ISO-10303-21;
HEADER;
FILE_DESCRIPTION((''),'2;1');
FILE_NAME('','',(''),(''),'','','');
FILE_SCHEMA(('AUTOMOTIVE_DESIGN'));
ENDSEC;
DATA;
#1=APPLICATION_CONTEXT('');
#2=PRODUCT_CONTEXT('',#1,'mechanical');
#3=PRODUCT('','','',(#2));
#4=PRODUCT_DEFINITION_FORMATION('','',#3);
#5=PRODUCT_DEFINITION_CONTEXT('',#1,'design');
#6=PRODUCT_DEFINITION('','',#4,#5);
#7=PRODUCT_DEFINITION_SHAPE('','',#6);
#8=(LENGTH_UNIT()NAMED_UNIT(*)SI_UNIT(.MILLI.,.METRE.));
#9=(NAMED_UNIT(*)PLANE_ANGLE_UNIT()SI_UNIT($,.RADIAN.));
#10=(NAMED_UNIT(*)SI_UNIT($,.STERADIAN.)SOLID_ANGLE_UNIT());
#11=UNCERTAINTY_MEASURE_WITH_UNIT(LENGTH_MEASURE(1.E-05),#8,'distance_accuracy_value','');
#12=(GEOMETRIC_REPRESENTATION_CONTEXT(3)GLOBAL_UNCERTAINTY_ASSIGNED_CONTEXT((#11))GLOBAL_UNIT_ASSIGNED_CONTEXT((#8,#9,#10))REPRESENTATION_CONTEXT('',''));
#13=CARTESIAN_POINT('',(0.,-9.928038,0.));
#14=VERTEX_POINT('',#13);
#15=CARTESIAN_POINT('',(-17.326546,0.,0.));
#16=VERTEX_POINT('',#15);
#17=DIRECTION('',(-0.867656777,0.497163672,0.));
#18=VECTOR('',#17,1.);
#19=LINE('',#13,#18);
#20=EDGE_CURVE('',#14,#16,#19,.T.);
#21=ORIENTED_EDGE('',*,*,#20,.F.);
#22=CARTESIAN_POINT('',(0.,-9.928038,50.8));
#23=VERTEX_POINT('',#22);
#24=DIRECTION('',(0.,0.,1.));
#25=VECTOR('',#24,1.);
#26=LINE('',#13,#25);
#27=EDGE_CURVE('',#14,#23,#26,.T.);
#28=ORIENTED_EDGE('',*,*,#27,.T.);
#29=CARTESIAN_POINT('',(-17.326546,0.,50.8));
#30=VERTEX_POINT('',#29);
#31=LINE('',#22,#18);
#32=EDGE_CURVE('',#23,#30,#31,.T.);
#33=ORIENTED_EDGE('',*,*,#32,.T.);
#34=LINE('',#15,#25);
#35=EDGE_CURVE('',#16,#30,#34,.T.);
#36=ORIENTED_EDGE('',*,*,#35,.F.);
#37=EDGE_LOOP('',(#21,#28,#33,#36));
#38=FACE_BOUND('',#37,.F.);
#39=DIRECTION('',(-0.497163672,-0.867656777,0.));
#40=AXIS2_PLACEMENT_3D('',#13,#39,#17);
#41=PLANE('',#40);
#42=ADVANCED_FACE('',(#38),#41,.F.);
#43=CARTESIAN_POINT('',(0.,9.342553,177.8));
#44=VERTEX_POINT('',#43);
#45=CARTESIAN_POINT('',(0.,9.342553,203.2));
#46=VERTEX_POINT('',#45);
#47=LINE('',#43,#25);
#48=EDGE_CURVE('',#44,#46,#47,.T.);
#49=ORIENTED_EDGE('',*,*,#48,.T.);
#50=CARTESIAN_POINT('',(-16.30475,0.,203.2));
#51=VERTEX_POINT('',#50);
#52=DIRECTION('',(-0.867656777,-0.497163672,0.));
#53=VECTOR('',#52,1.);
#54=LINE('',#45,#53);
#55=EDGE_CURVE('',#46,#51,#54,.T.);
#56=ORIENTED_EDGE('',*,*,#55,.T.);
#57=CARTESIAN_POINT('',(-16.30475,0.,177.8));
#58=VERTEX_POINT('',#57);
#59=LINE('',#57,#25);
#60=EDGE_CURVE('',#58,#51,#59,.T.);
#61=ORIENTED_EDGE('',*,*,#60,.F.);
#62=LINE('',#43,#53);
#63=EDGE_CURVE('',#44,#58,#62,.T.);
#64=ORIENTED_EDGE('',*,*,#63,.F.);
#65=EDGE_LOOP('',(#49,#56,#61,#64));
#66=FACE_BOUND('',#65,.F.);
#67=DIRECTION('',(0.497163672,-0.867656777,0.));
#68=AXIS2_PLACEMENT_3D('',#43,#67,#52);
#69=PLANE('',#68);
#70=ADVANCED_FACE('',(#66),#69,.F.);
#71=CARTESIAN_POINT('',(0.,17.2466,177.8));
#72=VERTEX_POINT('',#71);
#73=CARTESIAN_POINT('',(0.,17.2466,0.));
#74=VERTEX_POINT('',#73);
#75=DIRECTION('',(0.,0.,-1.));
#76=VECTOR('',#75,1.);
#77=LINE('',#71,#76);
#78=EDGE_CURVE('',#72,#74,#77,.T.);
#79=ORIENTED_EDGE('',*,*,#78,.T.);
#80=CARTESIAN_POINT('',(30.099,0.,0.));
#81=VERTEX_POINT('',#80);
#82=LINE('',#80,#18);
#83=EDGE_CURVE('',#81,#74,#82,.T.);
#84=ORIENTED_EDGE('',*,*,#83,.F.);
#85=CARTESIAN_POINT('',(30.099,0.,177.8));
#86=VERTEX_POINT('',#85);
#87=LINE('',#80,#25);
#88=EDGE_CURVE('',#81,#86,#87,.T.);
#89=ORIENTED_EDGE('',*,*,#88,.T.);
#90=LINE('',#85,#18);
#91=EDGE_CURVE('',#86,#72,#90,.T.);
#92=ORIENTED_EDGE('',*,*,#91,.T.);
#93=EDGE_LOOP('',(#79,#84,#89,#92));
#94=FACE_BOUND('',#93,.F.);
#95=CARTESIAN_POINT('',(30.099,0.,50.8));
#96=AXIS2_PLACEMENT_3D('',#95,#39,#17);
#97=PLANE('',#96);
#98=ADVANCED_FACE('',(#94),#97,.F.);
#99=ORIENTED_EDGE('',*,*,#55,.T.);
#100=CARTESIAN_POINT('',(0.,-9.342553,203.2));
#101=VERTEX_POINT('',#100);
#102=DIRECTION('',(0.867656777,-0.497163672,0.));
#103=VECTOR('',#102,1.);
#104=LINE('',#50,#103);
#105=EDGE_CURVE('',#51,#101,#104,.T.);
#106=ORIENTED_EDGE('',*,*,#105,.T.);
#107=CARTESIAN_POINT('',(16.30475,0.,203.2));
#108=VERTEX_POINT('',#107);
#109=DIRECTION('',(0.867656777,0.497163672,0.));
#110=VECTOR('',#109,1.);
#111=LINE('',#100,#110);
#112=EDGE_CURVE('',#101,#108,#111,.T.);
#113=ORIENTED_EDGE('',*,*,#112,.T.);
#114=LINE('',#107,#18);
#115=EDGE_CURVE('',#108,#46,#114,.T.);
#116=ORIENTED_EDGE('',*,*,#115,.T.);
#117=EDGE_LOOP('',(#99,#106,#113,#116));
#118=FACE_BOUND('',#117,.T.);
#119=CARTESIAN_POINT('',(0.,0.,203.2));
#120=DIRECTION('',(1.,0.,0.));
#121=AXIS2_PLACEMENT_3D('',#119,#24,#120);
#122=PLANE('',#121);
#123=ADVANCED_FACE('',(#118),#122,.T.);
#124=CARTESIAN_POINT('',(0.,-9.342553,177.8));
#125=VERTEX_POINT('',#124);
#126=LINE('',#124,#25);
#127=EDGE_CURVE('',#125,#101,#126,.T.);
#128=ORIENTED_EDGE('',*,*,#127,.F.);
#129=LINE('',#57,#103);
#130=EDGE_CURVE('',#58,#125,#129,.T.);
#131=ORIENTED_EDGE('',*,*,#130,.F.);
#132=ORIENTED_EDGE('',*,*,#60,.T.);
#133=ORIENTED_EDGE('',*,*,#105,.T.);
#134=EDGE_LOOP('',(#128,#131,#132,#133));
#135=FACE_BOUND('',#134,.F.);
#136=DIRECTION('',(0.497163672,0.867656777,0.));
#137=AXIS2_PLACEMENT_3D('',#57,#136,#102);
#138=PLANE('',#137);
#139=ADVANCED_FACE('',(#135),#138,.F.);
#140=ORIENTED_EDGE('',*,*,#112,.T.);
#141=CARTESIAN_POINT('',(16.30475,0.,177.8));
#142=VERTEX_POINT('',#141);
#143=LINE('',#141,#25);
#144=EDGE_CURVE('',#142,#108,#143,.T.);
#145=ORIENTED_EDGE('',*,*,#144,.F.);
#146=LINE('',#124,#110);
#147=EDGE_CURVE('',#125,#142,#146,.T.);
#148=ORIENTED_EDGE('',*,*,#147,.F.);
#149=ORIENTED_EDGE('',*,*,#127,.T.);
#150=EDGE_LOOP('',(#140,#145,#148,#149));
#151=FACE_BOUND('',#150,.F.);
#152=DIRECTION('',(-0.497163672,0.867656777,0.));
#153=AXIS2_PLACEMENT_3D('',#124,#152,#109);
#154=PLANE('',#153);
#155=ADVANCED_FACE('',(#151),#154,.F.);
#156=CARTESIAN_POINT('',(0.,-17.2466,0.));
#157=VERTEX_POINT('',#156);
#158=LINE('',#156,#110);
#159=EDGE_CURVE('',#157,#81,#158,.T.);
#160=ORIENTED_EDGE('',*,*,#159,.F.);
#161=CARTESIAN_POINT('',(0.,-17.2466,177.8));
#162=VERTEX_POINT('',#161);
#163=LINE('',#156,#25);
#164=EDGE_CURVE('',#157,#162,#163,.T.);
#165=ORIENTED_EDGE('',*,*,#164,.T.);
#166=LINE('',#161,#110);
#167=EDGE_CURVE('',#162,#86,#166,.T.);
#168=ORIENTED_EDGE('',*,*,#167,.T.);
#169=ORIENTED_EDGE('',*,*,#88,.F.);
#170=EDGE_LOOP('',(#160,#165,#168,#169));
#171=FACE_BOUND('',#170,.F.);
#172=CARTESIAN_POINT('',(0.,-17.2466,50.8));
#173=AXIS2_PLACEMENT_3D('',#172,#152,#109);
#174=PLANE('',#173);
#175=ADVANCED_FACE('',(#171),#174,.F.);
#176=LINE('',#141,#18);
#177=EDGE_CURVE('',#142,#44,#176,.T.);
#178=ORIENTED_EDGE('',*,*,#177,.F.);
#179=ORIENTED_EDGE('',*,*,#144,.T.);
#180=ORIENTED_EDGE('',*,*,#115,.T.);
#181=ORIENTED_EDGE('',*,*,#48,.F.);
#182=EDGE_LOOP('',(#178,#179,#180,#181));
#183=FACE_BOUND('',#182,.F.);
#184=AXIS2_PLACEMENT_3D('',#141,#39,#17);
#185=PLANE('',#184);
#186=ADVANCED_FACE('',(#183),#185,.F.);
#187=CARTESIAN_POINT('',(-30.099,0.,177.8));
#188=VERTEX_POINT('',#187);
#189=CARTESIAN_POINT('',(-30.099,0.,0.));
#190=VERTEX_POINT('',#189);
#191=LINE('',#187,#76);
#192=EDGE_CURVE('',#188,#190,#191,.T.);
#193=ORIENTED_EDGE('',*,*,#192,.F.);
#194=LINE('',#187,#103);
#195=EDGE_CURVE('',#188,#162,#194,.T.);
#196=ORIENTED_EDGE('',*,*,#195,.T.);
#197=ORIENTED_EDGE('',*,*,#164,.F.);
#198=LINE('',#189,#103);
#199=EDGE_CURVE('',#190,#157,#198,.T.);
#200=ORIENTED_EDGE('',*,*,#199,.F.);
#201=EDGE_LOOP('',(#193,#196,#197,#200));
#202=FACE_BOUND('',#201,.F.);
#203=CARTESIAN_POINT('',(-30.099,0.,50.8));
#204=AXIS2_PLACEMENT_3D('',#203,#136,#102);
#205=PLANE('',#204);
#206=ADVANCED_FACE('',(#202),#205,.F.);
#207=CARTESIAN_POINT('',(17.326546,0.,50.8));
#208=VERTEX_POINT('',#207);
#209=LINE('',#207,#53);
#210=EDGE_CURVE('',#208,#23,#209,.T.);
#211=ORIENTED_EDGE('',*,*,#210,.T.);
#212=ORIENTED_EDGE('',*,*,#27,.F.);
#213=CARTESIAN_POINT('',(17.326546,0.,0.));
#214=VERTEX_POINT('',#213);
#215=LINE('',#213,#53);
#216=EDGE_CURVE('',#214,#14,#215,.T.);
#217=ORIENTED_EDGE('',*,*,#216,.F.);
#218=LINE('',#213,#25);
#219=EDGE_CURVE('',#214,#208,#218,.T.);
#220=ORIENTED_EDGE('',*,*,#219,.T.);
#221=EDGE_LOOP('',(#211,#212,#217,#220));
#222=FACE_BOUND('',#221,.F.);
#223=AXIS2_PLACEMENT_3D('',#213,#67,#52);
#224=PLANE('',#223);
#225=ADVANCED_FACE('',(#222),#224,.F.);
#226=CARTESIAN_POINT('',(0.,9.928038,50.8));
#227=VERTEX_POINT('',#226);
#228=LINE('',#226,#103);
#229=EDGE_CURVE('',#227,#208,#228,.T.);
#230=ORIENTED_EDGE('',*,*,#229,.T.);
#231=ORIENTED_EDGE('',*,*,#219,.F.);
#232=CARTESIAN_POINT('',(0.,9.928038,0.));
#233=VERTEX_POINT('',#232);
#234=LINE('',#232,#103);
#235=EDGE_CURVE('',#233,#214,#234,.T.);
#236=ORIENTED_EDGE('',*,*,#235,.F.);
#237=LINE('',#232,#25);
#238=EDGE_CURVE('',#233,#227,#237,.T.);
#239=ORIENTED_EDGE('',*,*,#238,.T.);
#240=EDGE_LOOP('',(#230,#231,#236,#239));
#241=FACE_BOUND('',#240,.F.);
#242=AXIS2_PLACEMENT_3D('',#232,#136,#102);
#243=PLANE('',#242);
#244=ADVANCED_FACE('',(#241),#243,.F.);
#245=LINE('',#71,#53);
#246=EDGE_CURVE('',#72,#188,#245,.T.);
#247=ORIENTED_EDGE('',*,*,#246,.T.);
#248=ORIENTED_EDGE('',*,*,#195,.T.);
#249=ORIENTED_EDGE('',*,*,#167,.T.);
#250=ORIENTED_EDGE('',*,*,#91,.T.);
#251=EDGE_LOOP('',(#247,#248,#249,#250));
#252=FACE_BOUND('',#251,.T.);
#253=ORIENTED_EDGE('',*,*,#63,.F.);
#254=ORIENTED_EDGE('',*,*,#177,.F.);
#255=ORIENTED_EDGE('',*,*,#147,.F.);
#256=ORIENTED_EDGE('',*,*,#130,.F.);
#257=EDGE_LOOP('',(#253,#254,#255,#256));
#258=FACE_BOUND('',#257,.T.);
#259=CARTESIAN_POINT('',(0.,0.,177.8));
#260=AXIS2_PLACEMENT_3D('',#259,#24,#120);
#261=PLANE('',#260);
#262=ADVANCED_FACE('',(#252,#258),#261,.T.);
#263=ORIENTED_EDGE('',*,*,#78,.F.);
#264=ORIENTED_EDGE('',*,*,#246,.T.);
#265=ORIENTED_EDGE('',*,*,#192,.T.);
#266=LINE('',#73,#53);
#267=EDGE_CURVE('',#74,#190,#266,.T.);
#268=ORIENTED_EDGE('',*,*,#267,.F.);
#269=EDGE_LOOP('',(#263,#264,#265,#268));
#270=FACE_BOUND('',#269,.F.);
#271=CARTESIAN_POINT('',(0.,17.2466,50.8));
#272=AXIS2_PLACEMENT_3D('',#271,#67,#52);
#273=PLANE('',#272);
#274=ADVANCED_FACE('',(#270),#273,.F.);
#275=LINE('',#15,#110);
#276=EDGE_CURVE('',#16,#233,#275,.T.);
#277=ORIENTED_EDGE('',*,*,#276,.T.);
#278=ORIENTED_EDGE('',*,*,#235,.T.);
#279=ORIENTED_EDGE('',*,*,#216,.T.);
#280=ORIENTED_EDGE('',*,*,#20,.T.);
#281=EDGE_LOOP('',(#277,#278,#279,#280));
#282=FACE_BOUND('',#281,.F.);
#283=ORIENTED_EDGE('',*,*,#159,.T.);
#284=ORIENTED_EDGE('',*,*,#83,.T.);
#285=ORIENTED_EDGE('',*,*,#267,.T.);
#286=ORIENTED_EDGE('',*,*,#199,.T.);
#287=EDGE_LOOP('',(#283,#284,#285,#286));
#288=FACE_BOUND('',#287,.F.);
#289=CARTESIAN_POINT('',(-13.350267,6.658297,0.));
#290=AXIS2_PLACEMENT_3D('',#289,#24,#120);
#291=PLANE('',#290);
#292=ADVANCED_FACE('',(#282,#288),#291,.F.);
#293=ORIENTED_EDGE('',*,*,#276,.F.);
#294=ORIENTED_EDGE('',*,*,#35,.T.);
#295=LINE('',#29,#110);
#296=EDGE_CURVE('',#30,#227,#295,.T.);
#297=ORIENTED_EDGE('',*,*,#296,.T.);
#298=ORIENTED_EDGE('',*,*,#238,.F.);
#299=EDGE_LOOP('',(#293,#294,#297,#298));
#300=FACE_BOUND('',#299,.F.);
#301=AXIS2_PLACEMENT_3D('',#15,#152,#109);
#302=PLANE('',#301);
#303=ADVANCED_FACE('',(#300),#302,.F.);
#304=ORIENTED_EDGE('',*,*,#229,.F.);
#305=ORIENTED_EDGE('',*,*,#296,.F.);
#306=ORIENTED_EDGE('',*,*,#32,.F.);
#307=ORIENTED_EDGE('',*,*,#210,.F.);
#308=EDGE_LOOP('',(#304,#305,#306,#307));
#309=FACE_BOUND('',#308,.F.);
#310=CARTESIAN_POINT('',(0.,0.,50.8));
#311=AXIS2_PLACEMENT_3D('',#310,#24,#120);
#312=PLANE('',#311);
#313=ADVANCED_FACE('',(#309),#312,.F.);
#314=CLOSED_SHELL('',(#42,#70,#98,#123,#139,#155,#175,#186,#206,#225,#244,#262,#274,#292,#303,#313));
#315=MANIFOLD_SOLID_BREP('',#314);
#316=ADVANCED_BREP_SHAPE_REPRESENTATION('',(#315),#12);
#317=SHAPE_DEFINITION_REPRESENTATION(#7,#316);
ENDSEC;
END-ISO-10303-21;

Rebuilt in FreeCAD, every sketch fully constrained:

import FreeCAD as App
import Part
import Sketcher
from FreeCAD import Vector
Q = App.Units.Quantity

doc = App.newDocument("Part")
body = doc.addObject("PartDesign::Body", "Body")

# Sketch on XY plane
sketch1 = doc.addObject("Sketcher::SketchObject", "Sketch")
body.addObject(sketch1)
sketch1.AttachmentSupport = (doc.XY_Plane, [""])
sketch1.MapMode = "FlatFace"
sketch1.addGeometry([
    Part.LineSegment(Vector(0, -17, 0), Vector(30, 0, 0)),  # 0
    Part.LineSegment(Vector(30, 0, 0), Vector(0, 17, 0)),  # 1
    Part.LineSegment(Vector(0, 17, 0), Vector(-30, 0, 0)),  # 2
    Part.LineSegment(Vector(-30, 0, 0), Vector(0, -17, 0)),  # 3
    Part.LineSegment(Vector(-17, 0, 0), Vector(0, 10, 0)),  # 4
    Part.LineSegment(Vector(0, 10, 0), Vector(17, 0, 0)),  # 5
    Part.LineSegment(Vector(17, 0, 0), Vector(0, -10, 0)),  # 6
    Part.LineSegment(Vector(0, -10, 0), Vector(-17, 0, 0)),  # 7
], False)
sketch1.addConstraint([
    Sketcher.Constraint("Coincident", 0, 2, 1, 1),
    Sketcher.Constraint("Coincident", 1, 2, 2, 1),
    Sketcher.Constraint("Coincident", 2, 2, 3, 1),
    Sketcher.Constraint("Coincident", 3, 2, 0, 1),
    Sketcher.Constraint("Coincident", 4, 2, 5, 1),
    Sketcher.Constraint("Coincident", 5, 2, 6, 1),
    Sketcher.Constraint("Coincident", 6, 2, 7, 1),
    Sketcher.Constraint("Coincident", 7, 2, 4, 1),
    Sketcher.Constraint("Symmetric", 0, 2, 2, 2, -1, 1),
    Sketcher.Constraint("Symmetric", 1, 2, 3, 2, -1, 1),
    Sketcher.Constraint("Symmetric", 4, 2, 6, 2, -1, 1),
    Sketcher.Constraint("Symmetric", 5, 2, 7, 2, -1, 1),
    Sketcher.Constraint("PointOnObject", 0, 2, -1),
    Sketcher.Constraint("PointOnObject", 1, 2, -2),
    Sketcher.Constraint("PointOnObject", 4, 2, -2),
    Sketcher.Constraint("PointOnObject", 5, 2, -1),
    Sketcher.Constraint("Parallel", 2, 4),
    Sketcher.Constraint("DistanceX", 2, 2, 0, 2, Q("2.37 in")),
    Sketcher.Constraint("DistanceY", -1, 1, 1, 2, Q("0.679 in")),
    Sketcher.Constraint("Distance", 4, 19.969355),
])
pad1 = doc.addObject("PartDesign::Pad", "Pad")
body.addObject(pad1)
pad1.Profile = sketch1
pad1.Length = Q("2 in")

# Sketch on XY plane
sketch2 = doc.addObject("Sketcher::SketchObject", "Sketch001")
body.addObject(sketch2)
sketch2.AttachmentSupport = (doc.XY_Plane, [""])
sketch2.MapMode = "FlatFace"
sketch2.AttachmentOffset = App.Placement(Vector(0, 0, 2 * 25.4), App.Rotation())
sketch2.addGeometry([
    Part.LineSegment(Vector(-30, 0, 0), Vector(0, -17, 0)),
    Part.LineSegment(Vector(0, -17, 0), Vector(30, 0, 0)),
    Part.LineSegment(Vector(30, 0, 0), Vector(0, 17, 0)),
    Part.LineSegment(Vector(0, 17, 0), Vector(-30, 0, 0)),
], False)
sketch2.addConstraint([
    Sketcher.Constraint("Coincident", 0, 2, 1, 1),
    Sketcher.Constraint("Coincident", 1, 2, 2, 1),
    Sketcher.Constraint("Coincident", 2, 2, 3, 1),
    Sketcher.Constraint("Coincident", 3, 2, 0, 1),
    Sketcher.Constraint("Symmetric", 0, 2, 2, 2, -1, 1),
    Sketcher.Constraint("Symmetric", 1, 2, 3, 2, -1, 1),
    Sketcher.Constraint("PointOnObject", 0, 2, -2),
    Sketcher.Constraint("PointOnObject", 1, 2, -1),
    Sketcher.Constraint("DistanceX", 3, 2, 1, 2, Q("2.37 in")),
    Sketcher.Constraint("DistanceY", 0, 2, -1, 1, Q("0.679 in")),
])
pad2 = doc.addObject("PartDesign::Pad", "Pad001")
body.addObject(pad2)
pad2.Profile = sketch2
pad2.Length = Q("5 in")

# Sketch on XY plane
sketch3 = doc.addObject("Sketcher::SketchObject", "Sketch002")
body.addObject(sketch3)
sketch3.AttachmentSupport = (doc.XY_Plane, [""])
sketch3.MapMode = "FlatFace"
sketch3.AttachmentOffset = App.Placement(Vector(0, 0, 7 * 25.4), App.Rotation())
sketch3.addGeometry([
    Part.LineSegment(Vector(0, 9, 0), Vector(-16, 0, 0)),
    Part.LineSegment(Vector(-16, 0, 0), Vector(0, -9, 0)),
    Part.LineSegment(Vector(0, -9, 0), Vector(16, 0, 0)),
    Part.LineSegment(Vector(16, 0, 0), Vector(0, 9, 0)),
], False)
sketch3.addConstraint([
    Sketcher.Constraint("Coincident", 0, 2, 1, 1),
    Sketcher.Constraint("Coincident", 1, 2, 2, 1),
    Sketcher.Constraint("Coincident", 2, 2, 3, 1),
    Sketcher.Constraint("Coincident", 3, 2, 0, 1),
    Sketcher.Constraint("Symmetric", 0, 2, 2, 2, -1, 1),
    Sketcher.Constraint("Symmetric", 1, 2, 3, 2, -1, 1),
    Sketcher.Constraint("PointOnObject", 0, 2, -1),
    Sketcher.Constraint("PointOnObject", 1, 2, -2),
    Sketcher.Constraint("DistanceX", 0, 2, 2, 2, 32.6095),
    Sketcher.Constraint("Distance", 0, 18.791705),
])
pad3 = doc.addObject("PartDesign::Pad", "Pad002")
body.addObject(pad3)
pad3.Profile = sketch3
pad3.Length = Q("1 in")

doc.recompute()
